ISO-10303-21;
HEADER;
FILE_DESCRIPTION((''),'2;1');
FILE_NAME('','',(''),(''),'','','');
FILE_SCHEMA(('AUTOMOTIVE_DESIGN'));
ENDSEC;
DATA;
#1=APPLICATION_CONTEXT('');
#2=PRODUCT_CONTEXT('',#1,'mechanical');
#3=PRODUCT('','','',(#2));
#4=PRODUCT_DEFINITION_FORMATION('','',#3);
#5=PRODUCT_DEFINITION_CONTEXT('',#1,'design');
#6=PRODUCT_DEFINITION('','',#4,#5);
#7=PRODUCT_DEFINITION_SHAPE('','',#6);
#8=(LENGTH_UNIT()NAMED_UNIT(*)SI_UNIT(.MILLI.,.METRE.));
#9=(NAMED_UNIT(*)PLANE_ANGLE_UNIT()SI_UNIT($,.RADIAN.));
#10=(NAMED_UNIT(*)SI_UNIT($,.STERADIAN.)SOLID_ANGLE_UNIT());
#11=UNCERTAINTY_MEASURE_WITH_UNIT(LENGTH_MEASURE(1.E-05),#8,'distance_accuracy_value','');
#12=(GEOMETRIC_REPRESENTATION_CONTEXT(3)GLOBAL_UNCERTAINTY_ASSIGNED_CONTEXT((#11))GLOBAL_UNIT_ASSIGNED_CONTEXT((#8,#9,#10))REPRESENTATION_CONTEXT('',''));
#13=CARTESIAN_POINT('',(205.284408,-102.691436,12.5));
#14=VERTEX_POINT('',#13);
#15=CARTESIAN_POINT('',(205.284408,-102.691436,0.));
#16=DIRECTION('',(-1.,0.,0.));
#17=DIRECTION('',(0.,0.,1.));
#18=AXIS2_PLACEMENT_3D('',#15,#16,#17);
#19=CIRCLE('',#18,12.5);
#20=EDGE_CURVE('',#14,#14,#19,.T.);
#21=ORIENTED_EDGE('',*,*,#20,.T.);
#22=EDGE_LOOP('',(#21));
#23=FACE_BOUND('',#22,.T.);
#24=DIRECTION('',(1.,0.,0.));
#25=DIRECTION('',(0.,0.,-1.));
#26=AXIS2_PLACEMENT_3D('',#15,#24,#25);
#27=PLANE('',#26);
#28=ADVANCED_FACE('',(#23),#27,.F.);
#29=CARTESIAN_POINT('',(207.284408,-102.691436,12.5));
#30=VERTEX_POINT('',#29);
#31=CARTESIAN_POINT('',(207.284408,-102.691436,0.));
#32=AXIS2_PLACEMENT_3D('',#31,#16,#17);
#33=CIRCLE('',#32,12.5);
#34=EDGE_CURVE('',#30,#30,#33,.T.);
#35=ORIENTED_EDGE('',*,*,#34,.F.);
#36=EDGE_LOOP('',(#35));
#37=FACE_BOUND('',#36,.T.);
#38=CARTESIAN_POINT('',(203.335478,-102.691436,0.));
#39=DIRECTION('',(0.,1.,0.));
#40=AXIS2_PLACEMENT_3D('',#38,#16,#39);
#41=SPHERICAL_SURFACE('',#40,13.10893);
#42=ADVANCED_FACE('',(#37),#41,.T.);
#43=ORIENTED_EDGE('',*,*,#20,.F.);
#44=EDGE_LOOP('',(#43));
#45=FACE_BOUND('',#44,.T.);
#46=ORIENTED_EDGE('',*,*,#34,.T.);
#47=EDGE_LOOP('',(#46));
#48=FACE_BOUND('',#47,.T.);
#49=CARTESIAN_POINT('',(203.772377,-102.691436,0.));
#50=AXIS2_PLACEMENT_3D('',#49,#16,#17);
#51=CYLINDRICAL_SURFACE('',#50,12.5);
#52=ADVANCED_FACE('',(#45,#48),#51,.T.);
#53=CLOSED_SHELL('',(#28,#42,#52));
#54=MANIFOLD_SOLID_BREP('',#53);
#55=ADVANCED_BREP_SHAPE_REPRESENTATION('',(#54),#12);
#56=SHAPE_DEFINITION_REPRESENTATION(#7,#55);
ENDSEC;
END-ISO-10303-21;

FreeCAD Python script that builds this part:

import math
import FreeCAD as App
import Part
import Sketcher

V = App.Vector
Q = App.Units.Quantity

doc = App.newDocument("Part")
params = doc.addObject("Spreadsheet::Sheet", "Params")
for row, (alias, value) in enumerate([
    ("sketch1_width", "2 mm"),
    ("sketch1_height", "12.5 mm"),
    ("sketch1_width2", "11.16 mm"),
    ("revolution_angle", "360 deg"),
], start=1):
    params.set(f"A{row}", alias)
    params.set(f"B{row}", "=" + value)
    params.setAlias(f"B{row}", alias)

body = doc.addObject("PartDesign::Body", "Body")

sketch1 = body.newObject("Sketcher::SketchObject", "Sketch")
sketch1.AttachmentSupport = (doc.getObject("XY_Plane"), [""])
sketch1.MapMode = "FlatFace"
sketch1.addGeometry([
    Part.LineSegment(V(205.3, -90.2, 0), V(205.3, -102.7, 0)),
    Part.LineSegment(V(205.3, -102.7, 0), V(216.4, -102.7, 0)),
    Part.ArcOfCircle(Part.Circle(V(203.3, -102.7, 0), V(0, 0, 1), 13.1), math.radians(0), math.radians(72)),
    Part.LineSegment(V(207.3, -90.2, 0), V(205.3, -90.2, 0)),
], False)
sketch1.addGeometry(Part.LineSegment(V(203.3, -102.7, 0), V(216.4, -102.7, 0)), True)
sketch1.addConstraint([
    Sketcher.Constraint("Coincident", 0, 2, 1, 1),
    Sketcher.Constraint("Coincident", 1, 2, 2, 1),
    Sketcher.Constraint("Coincident", 2, 2, 3, 1),
    Sketcher.Constraint("Coincident", 3, 2, 0, 1),
    Sketcher.Constraint("Vertical", 0),
    Sketcher.Constraint("Horizontal", 1),
    Sketcher.Constraint("Horizontal", 3),
    Sketcher.Constraint("Horizontal", 4),
    Sketcher.Constraint("Coincident", 4, 1, 2, 3),
    Sketcher.Constraint("Coincident", 4, 2, 1, 2),
    Sketcher.Constraint("DistanceX", 3, 2, 3, 1, Q("2 mm")),
    Sketcher.Constraint("DistanceY", 0, 2, 0, 1, Q("12.5 mm")),
    Sketcher.Constraint("DistanceX", 1, 1, 1, 2, Q("11.16 mm")),
    Sketcher.Constraint("DistanceX", -1, 1, 2, 3, Q("203.335478 mm")),
    Sketcher.Constraint("DistanceY", 2, 3, -1, 1, Q("102.691436 mm")),
])
sketch1.setExpression("Constraints[10]", "Params.sketch1_width")
sketch1.setExpression("Constraints[11]", "Params.sketch1_height")
sketch1.setExpression("Constraints[12]", "Params.sketch1_width2")
revolution = body.newObject("PartDesign::Revolution", "Revolution")
revolution.Profile = sketch1
revolution.ReferenceAxis = (sketch1, ["Axis0"])
revolution.setExpression("Angle", "Params.revolution_angle")

doc.recompute()
